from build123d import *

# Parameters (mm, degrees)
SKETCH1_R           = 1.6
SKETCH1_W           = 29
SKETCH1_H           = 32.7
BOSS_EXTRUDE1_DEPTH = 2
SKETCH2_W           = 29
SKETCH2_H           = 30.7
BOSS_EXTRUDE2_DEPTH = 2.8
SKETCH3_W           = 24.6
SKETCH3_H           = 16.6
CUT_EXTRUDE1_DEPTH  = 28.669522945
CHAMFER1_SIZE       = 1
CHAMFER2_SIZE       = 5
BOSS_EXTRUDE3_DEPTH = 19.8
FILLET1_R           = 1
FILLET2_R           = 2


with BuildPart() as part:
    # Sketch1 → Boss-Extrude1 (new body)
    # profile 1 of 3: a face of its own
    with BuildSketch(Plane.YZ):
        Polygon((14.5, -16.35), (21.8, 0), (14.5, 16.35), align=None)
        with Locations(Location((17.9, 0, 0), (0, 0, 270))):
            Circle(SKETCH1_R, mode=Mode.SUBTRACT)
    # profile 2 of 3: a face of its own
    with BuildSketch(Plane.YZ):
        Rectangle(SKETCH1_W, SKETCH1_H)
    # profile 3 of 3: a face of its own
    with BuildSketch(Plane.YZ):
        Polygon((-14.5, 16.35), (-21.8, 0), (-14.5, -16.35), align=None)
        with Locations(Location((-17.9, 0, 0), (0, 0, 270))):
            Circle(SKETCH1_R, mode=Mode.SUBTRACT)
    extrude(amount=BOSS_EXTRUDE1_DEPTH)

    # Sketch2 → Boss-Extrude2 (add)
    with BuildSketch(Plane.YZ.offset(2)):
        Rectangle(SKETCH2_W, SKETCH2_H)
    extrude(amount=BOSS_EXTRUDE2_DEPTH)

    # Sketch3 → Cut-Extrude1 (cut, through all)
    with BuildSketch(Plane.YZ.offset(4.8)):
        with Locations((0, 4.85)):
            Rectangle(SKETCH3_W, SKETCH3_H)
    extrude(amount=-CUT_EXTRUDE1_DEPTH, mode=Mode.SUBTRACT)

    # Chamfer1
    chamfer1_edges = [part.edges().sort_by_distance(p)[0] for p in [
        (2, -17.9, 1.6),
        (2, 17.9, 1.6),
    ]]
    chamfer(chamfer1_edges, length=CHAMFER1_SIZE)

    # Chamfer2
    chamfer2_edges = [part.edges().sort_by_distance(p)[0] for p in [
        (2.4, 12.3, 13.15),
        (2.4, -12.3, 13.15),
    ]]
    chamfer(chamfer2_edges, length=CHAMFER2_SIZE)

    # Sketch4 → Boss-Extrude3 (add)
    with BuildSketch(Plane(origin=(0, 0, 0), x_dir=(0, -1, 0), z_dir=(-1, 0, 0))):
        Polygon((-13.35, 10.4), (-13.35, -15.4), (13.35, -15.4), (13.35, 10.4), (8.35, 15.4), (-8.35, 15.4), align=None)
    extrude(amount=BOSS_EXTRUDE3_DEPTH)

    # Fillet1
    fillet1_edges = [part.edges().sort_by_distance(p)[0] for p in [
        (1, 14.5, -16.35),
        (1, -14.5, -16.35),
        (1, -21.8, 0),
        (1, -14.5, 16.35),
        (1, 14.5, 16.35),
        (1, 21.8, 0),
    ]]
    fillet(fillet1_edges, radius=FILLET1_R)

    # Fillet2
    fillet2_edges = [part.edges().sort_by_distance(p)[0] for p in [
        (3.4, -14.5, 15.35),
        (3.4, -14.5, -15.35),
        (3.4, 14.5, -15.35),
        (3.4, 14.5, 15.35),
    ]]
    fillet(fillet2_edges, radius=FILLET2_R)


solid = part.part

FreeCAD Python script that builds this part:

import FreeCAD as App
import Part
import Sketcher
from FreeCAD import Vector


def edges_at(feature, points):
    """Names of the edges that pass closest to the given points."""
    edges = feature.Shape.Edges
    near = lambda p: min(range(len(edges)), key=lambda i: edges[i].distToShape(Part.Vertex(*p))[0])
    return sorted({f"Edge{near(p) + 1}" for p in points})

doc = App.newDocument("Part")
body = doc.addObject("PartDesign::Body", "Body")

# Sketch on YZ plane
sketch1 = body.newObject("Sketcher::SketchObject", "Sketch")
sketch1.AttachmentSupport = (doc.getObject("YZ_Plane"), [""])
sketch1.MapMode = "FlatFace"
sketch1.addGeometry([
    Part.LineSegment(Vector(14.5, -16.35, 0), Vector(21.8, 0, 0)),  # 0
    Part.LineSegment(Vector(21.8, 0, 0), Vector(14.5, 16.35, 0)),  # 1
    Part.LineSegment(Vector(14.5, 16.35, 0), Vector(-14.5, 16.35, 0)),  # 2
    Part.LineSegment(Vector(-14.5, 16.35, 0), Vector(-21.8, 0, 0)),  # 3
    Part.LineSegment(Vector(-21.8, 0, 0), Vector(-14.5, -16.35, 0)),  # 4
    Part.LineSegment(Vector(-14.5, -16.35, 0), Vector(14.5, -16.35, 0)),  # 5
    Part.Circle(Vector(17.9, 0, 0), Vector(0, 0, 1), 1.6),  # 6
    Part.Circle(Vector(-17.9, 0, 0), Vector(0, 0, 1), 1.6),  # 7
], False)
sketch1.addConstraint([
    Sketcher.Constraint("Coincident", 0, 2, 1, 1),
    Sketcher.Constraint("Coincident", 1, 2, 2, 1),
    Sketcher.Constraint("Coincident", 2, 2, 3, 1),
    Sketcher.Constraint("Coincident", 3, 2, 4, 1),
    Sketcher.Constraint("Coincident", 4, 2, 5, 1),
    Sketcher.Constraint("Coincident", 5, 2, 0, 1),
    Sketcher.Constraint("Horizontal", 2),
    Sketcher.Constraint("Horizontal", 5),
    Sketcher.Constraint("Equal", 6, 7),
    Sketcher.Constraint("Symmetric", 6, 3, 7, 3, -1, 1),
    Sketcher.Constraint("Symmetric", 0, 2, 3, 2, -1, 1),
    Sketcher.Constraint("Symmetric", 1, 2, 4, 2, -1, 1),
    Sketcher.Constraint("PointOnObject", 6, 3, -1),
    Sketcher.Constraint("PointOnObject", 0, 2, -1),
    Sketcher.Constraint("Parallel", 0, 3),
    Sketcher.Constraint("Vertical", 2, 2, 4, 2),
    Sketcher.Constraint("Diameter", 6, 3.2),
    Sketcher.Constraint("DistanceX", 2, 2, 2, 1, 29.0),
    Sketcher.Constraint("DistanceX", -1, 1, 6, 3, 17.9),
    Sketcher.Constraint("DistanceX", -1, 1, 0, 2, 21.8),
    Sketcher.Constraint("DistanceY", 4, 2, 2, 2, 32.7),
])
pad1 = body.newObject("PartDesign::Pad", "Pad")
pad1.Profile = sketch1
pad1.Length = 2

# Sketch on YZ plane
sketch2 = body.newObject("Sketcher::SketchObject", "Sketch001")
sketch2.AttachmentSupport = (doc.getObject("YZ_Plane"), [""])
sketch2.MapMode = "FlatFace"
sketch2.AttachmentOffset = App.Placement(Vector(0, 0, 2), App.Rotation())
sketch2.addGeometry([
    Part.LineSegment(Vector(-14.5, 15.35, 0), Vector(-14.5, -15.35, 0)),
    Part.LineSegment(Vector(-14.5, -15.35, 0), Vector(14.5, -15.35, 0)),
    Part.LineSegment(Vector(14.5, -15.35, 0), Vector(14.5, 15.35, 0)),
    Part.LineSegment(Vector(14.5, 15.35, 0), Vector(-14.5, 15.35, 0)),
], False)
sketch2.addConstraint([
    Sketcher.Constraint("Coincident", 0, 2, 1, 1),
    Sketcher.Constraint("Coincident", 1, 2, 2, 1),
    Sketcher.Constraint("Coincident", 2, 2, 3, 1),
    Sketcher.Constraint("Coincident", 3, 2, 0, 1),
    Sketcher.Constraint("Vertical", 0),
    Sketcher.Constraint("Horizontal", 1),
    Sketcher.Constraint("Vertical", 2),
    Sketcher.Constraint("Horizontal", 3),
    Sketcher.Constraint("Symmetric", 0, 2, 2, 2, -1, 1),
    Sketcher.Constraint("DistanceX", 1, 1, 1, 2, 29.0),
    Sketcher.Constraint("DistanceY", 0, 2, 0, 1, 30.7),
])
pad2 = body.newObject("PartDesign::Pad", "Pad001")
pad2.Profile = sketch2
pad2.Length = 2.8

# Sketch on YZ plane
sketch3 = body.newObject("Sketcher::SketchObject", "Sketch002")
sketch3.AttachmentSupport = (doc.getObject("YZ_Plane"), [""])
sketch3.MapMode = "FlatFace"
sketch3.AttachmentOffset = App.Placement(Vector(0, 0, 4.8), App.Rotation())
sketch3.addGeometry([
    Part.LineSegment(Vector(-12.3, 13.15, 0), Vector(-12.3, -3.45, 0)),
    Part.LineSegment(Vector(-12.3, -3.45, 0), Vector(12.3, -3.45, 0)),
    Part.LineSegment(Vector(12.3, -3.45, 0), Vector(12.3, 13.15, 0)),
    Part.LineSegment(Vector(12.3, 13.15, 0), Vector(-12.3, 13.15, 0)),
], False)
sketch3.addConstraint([
    Sketcher.Constraint("Coincident", 0, 2, 1, 1),
    Sketcher.Constraint("Coincident", 1, 2, 2, 1),
    Sketcher.Constraint("Coincident", 2, 2, 3, 1),
    Sketcher.Constraint("Coincident", 3, 2, 0, 1),
    Sketcher.Constraint("Vertical", 0),
    Sketcher.Constraint("Horizontal", 1),
    Sketcher.Constraint("Vertical", 2),
    Sketcher.Constraint("Horizontal", 3),
    Sketcher.Constraint("DistanceX", 1, 1, 1, 2, 24.6),
    Sketcher.Constraint("DistanceY", 0, 2, 0, 1, 16.6),
    Sketcher.Constraint("DistanceX", 0, 2, -1, 1, 12.3),
    Sketcher.Constraint("DistanceY", 0, 2, -1, 1, 3.45),
])
pocket1 = body.newObject("PartDesign::Pocket", "Pocket")
pocket1.Profile = sketch3
pocket1.Type = "ThroughAll"
doc.recompute()

chamfer = body.newObject("PartDesign::Chamfer", "Chamfer")
chamfer.Base = (pocket1, edges_at(pocket1, [(2, -17.9, 1.6), (2, 17.9, 1.6)]))
chamfer.Size = 1
doc.recompute()

chamfer2 = body.newObject("PartDesign::Chamfer", "Chamfer001")
chamfer2.Base = (chamfer, edges_at(chamfer, [(2.4, 12.3, 13.15), (2.4, -12.3, 13.15)]))
chamfer2.Size = 5

# Sketch on YZ plane
sketch4 = body.newObject("Sketcher::SketchObject", "Sketch003")
sketch4.AttachmentSupport = (doc.getObject("YZ_Plane"), [""])
sketch4.MapMode = "FlatFace"
sketch4.addGeometry([
    Part.LineSegment(Vector(13.35, 10.4, 0), Vector(13.35, -15.4, 0)),  # 0
    Part.LineSegment(Vector(13.35, -15.4, 0), Vector(-13.35, -15.4, 0)),  # 1
    Part.LineSegment(Vector(-13.35, -15.4, 0), Vector(-13.35, 10.4, 0)),  # 2
    Part.LineSegment(Vector(-13.35, 10.4, 0), Vector(-8.35, 15.4, 0)),  # 3
    Part.LineSegment(Vector(-8.35, 15.4, 0), Vector(8.35, 15.4, 0)),  # 4
    Part.LineSegment(Vector(8.35, 15.4, 0), Vector(13.35, 10.4, 0)),  # 5
], False)
sketch4.addConstraint([
    Sketcher.Constraint("Coincident", 0, 2, 1, 1),
    Sketcher.Constraint("Coincident", 1, 2, 2, 1),
    Sketcher.Constraint("Coincident", 2, 2, 3, 1),
    Sketcher.Constraint("Coincident", 3, 2, 4, 1),
    Sketcher.Constraint("Coincident", 4, 2, 5, 1),
    Sketcher.Constraint("Coincident", 5, 2, 0, 1),
    Sketcher.Constraint("Vertical", 0),
    Sketcher.Constraint("Horizontal", 1),
    Sketcher.Constraint("Vertical", 2),
    Sketcher.Constraint("Horizontal", 4),
    Sketcher.Constraint("Symmetric", 2, 2, 5, 2, -2),
    Sketcher.Constraint("Perpendicular", 3, 5),
    Sketcher.Constraint("Equal", 3, 5),
    Sketcher.Constraint("DistanceX", 1, 2, 1, 1, 26.7),
    Sketcher.Constraint("DistanceX", 4, 1, 4, 2, 16.7),
    Sketcher.Constraint("DistanceY", 0, 2, 0, 1, 25.8),
    Sketcher.Constraint("DistanceY", 0, 2, -1, 1, 15.4),
])
pad3 = body.newObject("PartDesign::Pad", "Pad002")
pad3.Profile = sketch4
pad3.Length = 19.8
pad3.Reversed = True
doc.recompute()

fillet = body.newObject("PartDesign::Fillet", "Fillet")
fillet.Base = (pad3, edges_at(pad3, [
    (1, 14.5, -16.35),
    (1, -14.5, -16.35),
    (1, -21.8, 0),
    (1, -14.5, 16.35),
    (1, 14.5, 16.35),
    (1, 21.8, 0),
]))
fillet.Radius = 1
doc.recompute()

fillet2 = body.newObject("PartDesign::Fillet", "Fillet001")
fillet2.Base = (fillet, edges_at(fillet, [
    (3.4, -14.5, 15.35),
    (3.4, -14.5, -15.35),
    (3.4, 14.5, -15.35),
    (3.4, 14.5, 15.35),
]))
fillet2.Radius = 2

doc.recompute()
